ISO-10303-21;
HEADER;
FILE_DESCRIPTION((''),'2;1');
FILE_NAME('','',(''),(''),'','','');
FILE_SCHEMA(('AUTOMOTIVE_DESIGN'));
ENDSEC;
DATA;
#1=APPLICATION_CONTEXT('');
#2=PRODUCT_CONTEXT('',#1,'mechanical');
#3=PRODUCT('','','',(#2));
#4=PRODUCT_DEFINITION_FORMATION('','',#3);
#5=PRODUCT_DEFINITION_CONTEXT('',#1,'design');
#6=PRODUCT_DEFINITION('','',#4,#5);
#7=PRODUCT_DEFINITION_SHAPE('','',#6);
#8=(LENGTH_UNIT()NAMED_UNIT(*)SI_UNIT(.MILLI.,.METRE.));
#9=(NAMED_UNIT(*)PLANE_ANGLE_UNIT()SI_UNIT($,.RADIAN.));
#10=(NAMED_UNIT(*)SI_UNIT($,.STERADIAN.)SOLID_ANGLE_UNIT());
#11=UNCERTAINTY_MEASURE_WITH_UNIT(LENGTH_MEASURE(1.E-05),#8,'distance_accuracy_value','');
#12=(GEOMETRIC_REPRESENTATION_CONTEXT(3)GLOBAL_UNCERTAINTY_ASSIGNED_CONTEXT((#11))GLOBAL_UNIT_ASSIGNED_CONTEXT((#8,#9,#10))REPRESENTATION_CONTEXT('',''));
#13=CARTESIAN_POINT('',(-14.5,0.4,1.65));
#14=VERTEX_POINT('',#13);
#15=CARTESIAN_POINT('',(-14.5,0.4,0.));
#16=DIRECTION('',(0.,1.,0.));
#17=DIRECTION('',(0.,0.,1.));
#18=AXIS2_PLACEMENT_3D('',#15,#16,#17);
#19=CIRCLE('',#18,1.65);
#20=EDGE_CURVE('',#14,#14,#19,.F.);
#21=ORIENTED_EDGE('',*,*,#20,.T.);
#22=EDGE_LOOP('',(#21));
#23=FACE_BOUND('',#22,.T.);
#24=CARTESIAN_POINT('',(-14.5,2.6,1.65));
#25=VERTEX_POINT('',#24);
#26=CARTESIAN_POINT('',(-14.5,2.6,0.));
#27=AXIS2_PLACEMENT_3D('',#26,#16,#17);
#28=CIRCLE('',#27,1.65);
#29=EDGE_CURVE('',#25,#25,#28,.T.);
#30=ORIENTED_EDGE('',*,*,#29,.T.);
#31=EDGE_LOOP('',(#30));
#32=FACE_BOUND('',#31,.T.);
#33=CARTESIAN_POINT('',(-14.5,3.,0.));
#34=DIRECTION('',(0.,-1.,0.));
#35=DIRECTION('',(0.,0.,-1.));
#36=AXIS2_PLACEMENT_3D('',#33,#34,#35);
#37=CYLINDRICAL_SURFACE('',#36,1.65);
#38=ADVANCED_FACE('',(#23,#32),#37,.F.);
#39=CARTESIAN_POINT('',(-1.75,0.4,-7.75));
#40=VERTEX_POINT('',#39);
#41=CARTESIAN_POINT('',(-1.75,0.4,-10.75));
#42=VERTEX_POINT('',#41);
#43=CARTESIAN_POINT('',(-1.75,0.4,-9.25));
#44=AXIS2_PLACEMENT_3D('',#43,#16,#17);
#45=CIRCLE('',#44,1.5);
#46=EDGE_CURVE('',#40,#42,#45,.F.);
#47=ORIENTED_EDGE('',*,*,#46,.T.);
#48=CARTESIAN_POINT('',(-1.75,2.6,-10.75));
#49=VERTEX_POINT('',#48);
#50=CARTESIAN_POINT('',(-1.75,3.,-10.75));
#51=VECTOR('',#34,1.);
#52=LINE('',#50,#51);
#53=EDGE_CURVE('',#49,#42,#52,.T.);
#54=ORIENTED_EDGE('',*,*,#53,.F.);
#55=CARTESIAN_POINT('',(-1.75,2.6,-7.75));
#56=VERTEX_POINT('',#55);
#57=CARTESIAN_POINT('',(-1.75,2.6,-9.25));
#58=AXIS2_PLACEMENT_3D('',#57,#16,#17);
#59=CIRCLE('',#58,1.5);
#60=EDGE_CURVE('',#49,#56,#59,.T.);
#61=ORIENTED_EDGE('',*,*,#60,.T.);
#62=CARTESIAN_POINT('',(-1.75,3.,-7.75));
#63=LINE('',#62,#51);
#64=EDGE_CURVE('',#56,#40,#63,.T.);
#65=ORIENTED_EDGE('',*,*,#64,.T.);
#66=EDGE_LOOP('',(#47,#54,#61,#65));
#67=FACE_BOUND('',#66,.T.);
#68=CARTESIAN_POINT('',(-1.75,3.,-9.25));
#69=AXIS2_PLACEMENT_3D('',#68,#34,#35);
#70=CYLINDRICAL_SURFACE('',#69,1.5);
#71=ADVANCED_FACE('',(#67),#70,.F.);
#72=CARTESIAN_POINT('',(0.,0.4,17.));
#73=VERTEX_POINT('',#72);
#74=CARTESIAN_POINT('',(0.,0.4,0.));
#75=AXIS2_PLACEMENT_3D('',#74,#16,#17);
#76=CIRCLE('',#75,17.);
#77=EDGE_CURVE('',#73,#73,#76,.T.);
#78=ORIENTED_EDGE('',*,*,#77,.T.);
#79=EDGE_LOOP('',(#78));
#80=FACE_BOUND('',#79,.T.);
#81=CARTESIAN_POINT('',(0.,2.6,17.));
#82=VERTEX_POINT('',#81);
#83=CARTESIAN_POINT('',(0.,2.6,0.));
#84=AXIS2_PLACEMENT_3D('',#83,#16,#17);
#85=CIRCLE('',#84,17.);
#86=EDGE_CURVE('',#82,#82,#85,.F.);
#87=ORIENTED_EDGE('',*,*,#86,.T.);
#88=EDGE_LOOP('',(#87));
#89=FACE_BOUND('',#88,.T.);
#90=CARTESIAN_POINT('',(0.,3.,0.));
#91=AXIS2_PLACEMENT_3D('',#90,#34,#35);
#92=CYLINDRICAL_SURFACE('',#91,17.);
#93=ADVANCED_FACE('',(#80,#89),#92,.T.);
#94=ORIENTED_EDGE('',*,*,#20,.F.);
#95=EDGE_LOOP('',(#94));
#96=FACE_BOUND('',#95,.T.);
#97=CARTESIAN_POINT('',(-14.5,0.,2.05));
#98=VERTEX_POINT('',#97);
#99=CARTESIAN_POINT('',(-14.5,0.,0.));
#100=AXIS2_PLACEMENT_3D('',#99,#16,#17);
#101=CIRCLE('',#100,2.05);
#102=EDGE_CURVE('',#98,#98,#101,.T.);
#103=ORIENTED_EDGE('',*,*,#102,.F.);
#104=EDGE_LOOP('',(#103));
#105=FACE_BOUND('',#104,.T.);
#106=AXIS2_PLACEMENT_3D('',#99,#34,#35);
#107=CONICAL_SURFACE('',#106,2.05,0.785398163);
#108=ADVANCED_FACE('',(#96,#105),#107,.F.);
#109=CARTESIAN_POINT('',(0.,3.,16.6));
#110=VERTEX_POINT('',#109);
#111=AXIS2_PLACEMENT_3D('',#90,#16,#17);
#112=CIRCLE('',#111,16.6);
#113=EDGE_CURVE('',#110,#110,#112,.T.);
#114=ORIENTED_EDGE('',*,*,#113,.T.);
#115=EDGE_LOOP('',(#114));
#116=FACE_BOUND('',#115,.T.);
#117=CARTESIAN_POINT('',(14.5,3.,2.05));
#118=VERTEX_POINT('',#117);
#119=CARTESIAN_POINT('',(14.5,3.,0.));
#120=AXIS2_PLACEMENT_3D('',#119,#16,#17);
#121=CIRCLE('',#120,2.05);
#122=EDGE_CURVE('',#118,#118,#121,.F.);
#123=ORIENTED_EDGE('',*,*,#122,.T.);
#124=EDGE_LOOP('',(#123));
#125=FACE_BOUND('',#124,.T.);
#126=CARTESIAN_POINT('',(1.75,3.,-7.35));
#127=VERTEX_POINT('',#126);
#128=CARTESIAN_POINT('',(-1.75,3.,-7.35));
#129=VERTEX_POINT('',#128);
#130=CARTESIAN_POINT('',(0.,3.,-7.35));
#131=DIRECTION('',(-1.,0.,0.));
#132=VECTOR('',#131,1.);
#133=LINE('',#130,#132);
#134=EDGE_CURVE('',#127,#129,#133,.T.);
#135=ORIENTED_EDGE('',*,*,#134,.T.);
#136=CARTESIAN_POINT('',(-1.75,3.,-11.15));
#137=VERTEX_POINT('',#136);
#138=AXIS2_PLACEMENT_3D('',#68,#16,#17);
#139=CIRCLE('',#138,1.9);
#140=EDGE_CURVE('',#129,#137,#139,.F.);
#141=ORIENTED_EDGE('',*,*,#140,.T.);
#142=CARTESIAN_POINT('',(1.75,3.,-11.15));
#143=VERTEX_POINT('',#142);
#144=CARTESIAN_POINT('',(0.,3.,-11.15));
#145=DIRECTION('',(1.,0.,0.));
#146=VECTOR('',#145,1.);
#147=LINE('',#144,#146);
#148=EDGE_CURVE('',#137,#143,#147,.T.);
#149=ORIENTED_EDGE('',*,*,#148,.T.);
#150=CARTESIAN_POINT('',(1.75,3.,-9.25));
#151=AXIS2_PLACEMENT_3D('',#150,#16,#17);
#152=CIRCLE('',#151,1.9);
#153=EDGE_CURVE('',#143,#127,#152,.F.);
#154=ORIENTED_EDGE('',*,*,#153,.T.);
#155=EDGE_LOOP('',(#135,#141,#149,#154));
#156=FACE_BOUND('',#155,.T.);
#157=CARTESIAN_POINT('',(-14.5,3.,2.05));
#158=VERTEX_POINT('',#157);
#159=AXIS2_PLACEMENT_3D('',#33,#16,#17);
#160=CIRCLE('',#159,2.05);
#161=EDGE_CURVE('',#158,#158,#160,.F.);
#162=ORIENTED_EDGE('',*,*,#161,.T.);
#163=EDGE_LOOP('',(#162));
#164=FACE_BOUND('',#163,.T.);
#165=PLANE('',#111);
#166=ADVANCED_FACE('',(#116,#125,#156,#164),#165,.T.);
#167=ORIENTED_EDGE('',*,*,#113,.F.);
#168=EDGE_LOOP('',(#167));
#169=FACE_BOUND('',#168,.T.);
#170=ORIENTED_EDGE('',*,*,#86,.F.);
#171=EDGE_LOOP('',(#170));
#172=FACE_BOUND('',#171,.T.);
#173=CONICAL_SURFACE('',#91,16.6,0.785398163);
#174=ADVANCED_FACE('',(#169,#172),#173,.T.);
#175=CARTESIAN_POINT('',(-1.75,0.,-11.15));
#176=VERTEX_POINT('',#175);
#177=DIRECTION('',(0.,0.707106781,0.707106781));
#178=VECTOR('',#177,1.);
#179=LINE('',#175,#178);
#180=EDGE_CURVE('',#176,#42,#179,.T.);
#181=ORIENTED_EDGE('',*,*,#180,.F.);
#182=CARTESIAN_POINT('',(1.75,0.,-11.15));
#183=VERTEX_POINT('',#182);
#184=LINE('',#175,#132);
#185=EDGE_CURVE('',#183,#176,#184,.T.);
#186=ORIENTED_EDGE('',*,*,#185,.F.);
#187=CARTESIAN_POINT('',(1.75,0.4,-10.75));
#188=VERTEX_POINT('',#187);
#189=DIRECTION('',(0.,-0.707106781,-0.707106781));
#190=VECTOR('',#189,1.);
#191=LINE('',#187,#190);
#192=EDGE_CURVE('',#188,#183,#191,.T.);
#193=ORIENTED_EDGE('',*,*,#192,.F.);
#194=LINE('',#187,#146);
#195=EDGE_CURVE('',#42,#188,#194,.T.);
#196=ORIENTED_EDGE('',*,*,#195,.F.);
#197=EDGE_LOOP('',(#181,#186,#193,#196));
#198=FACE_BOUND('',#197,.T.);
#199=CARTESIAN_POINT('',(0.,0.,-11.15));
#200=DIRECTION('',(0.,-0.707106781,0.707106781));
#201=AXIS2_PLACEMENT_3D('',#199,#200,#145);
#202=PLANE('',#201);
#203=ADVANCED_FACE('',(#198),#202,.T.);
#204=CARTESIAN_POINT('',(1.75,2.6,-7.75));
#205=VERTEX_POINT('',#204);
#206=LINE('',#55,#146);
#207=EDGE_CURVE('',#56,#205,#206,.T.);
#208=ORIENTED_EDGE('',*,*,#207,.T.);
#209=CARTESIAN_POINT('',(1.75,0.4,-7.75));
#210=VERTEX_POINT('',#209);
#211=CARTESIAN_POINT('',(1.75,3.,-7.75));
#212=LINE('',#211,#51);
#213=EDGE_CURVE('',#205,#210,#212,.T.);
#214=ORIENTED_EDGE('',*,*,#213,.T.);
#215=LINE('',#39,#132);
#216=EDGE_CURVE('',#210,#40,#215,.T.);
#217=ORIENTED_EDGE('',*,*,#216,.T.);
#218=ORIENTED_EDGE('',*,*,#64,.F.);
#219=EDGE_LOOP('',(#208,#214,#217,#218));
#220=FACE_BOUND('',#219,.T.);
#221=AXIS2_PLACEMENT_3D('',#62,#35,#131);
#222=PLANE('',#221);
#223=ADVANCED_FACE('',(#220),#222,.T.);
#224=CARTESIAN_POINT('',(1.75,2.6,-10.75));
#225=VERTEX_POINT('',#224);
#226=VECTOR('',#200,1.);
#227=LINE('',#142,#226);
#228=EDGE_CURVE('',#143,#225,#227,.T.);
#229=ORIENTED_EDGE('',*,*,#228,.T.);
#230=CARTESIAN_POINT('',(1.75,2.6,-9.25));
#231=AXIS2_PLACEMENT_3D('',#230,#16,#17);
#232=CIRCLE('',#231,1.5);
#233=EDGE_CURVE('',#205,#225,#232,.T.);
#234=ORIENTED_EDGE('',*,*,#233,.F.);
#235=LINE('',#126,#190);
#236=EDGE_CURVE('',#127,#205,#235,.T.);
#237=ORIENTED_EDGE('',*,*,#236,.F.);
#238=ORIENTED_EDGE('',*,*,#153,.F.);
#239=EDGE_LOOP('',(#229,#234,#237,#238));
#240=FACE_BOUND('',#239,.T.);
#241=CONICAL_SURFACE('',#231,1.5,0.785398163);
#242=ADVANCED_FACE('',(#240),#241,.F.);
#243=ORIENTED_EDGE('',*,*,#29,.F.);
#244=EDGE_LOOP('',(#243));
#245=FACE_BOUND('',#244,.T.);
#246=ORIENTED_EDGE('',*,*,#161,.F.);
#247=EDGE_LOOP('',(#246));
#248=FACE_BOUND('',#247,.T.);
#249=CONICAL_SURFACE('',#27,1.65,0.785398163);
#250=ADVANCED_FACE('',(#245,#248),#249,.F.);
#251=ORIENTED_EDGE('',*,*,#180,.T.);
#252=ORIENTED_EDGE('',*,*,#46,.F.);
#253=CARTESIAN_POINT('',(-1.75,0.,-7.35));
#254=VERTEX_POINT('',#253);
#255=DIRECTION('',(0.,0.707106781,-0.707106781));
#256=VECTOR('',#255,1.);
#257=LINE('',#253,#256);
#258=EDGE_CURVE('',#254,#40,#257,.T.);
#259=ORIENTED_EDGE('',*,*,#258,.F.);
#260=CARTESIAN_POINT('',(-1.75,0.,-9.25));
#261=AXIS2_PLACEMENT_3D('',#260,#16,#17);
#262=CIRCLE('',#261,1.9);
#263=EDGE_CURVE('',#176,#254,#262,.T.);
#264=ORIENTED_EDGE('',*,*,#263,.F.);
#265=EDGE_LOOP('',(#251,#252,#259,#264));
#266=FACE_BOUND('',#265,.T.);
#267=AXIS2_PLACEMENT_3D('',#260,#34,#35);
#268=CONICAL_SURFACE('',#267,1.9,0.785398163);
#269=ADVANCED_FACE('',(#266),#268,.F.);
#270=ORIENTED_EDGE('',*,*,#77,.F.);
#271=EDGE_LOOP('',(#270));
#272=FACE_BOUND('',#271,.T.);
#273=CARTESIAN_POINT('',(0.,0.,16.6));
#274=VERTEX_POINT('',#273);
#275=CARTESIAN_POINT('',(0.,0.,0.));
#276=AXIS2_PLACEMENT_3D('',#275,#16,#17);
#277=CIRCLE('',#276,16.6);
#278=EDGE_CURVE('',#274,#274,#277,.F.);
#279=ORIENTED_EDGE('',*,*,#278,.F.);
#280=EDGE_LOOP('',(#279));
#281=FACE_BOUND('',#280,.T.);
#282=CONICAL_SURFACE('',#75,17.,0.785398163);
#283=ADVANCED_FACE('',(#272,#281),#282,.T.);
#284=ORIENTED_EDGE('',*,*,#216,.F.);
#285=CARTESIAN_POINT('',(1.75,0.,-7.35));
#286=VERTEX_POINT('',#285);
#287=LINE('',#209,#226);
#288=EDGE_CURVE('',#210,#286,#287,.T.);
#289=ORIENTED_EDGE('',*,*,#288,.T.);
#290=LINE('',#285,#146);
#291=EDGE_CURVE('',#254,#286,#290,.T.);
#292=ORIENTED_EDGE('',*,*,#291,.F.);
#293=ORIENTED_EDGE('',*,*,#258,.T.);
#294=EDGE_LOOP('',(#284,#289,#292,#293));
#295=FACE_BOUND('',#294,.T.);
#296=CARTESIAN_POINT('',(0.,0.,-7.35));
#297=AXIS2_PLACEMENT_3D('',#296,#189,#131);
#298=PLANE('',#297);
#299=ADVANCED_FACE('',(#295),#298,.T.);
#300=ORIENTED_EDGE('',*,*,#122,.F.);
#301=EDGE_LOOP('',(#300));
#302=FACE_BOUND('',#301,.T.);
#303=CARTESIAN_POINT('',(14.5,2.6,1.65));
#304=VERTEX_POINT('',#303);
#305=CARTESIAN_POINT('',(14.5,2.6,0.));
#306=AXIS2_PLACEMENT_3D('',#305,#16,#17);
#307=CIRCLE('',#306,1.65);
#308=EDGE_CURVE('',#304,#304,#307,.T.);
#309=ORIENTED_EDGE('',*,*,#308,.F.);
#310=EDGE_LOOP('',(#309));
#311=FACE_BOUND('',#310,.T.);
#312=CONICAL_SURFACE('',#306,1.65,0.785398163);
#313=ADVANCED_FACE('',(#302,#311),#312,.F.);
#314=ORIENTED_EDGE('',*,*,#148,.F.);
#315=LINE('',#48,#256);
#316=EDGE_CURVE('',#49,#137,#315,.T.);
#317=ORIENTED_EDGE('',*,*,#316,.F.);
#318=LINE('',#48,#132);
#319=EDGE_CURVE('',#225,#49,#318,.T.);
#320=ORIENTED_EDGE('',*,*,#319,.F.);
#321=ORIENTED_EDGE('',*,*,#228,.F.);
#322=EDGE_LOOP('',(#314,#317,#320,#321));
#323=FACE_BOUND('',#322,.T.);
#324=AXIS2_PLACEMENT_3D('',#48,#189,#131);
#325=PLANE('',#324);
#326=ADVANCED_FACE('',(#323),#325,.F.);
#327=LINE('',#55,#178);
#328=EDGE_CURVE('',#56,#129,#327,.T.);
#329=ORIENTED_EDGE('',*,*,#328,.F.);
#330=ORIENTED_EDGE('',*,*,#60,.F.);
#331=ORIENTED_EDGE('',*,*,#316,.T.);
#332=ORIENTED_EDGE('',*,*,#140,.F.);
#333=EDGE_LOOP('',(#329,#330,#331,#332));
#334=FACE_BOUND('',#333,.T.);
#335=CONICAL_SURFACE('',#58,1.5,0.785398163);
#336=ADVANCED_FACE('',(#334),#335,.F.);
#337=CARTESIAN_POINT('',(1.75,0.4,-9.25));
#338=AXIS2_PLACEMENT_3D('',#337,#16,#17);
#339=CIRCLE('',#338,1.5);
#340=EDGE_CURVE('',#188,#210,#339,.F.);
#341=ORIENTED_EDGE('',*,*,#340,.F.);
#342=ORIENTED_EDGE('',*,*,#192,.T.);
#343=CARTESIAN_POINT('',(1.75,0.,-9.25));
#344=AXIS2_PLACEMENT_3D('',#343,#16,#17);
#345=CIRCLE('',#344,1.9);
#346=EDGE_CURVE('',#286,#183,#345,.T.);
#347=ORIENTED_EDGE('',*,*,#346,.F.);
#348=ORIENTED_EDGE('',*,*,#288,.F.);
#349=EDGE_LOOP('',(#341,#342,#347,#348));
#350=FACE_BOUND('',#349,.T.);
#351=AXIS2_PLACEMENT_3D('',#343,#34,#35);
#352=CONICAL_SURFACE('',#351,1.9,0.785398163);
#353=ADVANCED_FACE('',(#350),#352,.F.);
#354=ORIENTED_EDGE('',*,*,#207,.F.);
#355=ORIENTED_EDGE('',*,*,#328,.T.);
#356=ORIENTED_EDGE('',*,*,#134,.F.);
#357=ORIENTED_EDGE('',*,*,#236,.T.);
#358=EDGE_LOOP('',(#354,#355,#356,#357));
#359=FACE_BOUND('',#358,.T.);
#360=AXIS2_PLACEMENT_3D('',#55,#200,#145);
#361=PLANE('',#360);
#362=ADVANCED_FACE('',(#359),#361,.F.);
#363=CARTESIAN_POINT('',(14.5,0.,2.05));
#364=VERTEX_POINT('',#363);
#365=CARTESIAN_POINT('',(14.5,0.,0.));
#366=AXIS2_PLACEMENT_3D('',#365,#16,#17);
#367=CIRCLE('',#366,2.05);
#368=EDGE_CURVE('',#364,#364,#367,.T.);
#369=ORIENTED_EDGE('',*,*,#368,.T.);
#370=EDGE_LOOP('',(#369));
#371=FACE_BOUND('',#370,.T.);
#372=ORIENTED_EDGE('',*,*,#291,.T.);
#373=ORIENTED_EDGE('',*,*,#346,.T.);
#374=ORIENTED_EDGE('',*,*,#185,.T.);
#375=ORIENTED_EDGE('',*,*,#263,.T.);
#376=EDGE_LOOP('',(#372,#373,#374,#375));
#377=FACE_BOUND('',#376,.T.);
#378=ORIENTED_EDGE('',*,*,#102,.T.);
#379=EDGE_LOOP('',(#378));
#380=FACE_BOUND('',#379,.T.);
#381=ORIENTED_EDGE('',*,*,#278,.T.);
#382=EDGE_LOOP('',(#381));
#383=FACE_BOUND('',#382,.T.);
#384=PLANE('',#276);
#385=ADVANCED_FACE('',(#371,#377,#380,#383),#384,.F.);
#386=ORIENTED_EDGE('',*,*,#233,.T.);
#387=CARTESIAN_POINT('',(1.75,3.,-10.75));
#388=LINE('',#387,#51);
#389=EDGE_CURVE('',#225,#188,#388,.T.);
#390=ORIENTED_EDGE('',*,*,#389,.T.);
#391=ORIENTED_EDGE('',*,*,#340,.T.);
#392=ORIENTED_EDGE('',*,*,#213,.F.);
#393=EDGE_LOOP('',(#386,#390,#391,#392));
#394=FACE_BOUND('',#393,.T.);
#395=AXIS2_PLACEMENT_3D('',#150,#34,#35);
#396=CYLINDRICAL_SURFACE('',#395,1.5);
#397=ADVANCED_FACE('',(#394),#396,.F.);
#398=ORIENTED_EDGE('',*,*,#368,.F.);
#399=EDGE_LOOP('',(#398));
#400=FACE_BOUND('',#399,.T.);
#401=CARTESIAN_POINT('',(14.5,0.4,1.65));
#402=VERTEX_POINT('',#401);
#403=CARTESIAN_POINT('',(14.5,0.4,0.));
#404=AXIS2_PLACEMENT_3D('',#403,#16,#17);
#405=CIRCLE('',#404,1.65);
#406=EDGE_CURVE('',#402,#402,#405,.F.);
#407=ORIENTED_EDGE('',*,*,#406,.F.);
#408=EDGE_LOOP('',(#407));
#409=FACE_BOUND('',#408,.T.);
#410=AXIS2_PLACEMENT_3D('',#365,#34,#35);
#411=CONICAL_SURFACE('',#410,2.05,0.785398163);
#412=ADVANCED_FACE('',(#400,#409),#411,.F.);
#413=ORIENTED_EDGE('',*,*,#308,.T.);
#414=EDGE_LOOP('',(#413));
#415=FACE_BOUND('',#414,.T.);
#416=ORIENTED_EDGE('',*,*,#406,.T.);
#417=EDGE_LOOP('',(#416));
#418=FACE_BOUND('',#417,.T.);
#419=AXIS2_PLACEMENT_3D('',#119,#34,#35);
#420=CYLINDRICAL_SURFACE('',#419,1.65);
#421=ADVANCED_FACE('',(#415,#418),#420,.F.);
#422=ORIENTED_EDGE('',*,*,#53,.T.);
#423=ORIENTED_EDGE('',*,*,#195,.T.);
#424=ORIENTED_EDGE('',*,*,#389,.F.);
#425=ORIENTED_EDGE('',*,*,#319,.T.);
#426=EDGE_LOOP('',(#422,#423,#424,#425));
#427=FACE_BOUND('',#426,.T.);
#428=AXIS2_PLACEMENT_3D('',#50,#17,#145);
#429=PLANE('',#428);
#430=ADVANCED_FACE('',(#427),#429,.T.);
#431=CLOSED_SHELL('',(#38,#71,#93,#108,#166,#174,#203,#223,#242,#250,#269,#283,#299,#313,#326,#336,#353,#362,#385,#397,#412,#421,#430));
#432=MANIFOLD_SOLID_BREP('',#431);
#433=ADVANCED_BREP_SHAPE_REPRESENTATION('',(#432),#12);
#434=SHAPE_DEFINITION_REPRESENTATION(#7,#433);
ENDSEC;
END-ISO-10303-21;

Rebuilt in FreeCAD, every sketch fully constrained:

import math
import FreeCAD as App
import Part
import Sketcher
from FreeCAD import Vector
Q = App.Units.Quantity


def edges_at(feature, points):
    """Names of the edges that pass closest to the given points."""
    edges = feature.Shape.Edges
    near = lambda p: min(range(len(edges)), key=lambda i: edges[i].distToShape(Part.Vertex(*p))[0])
    return sorted({f"Edge{near(p) + 1}" for p in points})

doc = App.newDocument("Part")
body = doc.addObject("PartDesign::Body", "Body")

# Sketch on XZ plane
sketch1 = doc.addObject("Sketcher::SketchObject", "Sketch")
body.addObject(sketch1)
sketch1.AttachmentSupport = (doc.XZ_Plane, [""])
sketch1.MapMode = "FlatFace"
sketch1.addGeometry(Part.Circle(Vector(0, 0, 0), Vector(0, 0, 1), 17), False)
sketch1.addGeometry(Part.Circle(Vector(-14.5, 0, 0), Vector(0, 0, 1), 1.6), False)
sketch1.addGeometry(Part.Circle(Vector(14.5, 0, 0), Vector(0, 0, 1), 1.6), False)
sketch1.addGeometry(Part.LineSegment(Vector(1.8, -7.8, 0), Vector(-1.8, -7.8, 0)), False)
sketch1.addGeometry(Part.ArcOfCircle(Part.Circle(Vector(-1.8, -9.2, 0), Vector(0, 0, 1), 1.5), math.radians(90), math.radians(270)), False)
sketch1.addGeometry(Part.LineSegment(Vector(-1.8, -10.8, 0), Vector(1.8, -10.8, 0)), False)
sketch1.addGeometry(Part.ArcOfCircle(Part.Circle(Vector(1.8, -9.2, 0), Vector(0, 0, 1), 1.5), math.radians(-90), math.radians(90)), False)
sketch1.addConstraint(Sketcher.Constraint("Tangent", 3, 2, 4, 1))
sketch1.addConstraint(Sketcher.Constraint("Tangent", 4, 2, 5, 1))
sketch1.addConstraint(Sketcher.Constraint("Tangent", 5, 2, 6, 1))
sketch1.addConstraint(Sketcher.Constraint("Tangent", 6, 2, 3, 1))
sketch1.addConstraint(Sketcher.Constraint("Horizontal", 3))
sketch1.addConstraint(Sketcher.Constraint("Horizontal", 5))
sketch1.addConstraint(Sketcher.Constraint("Coincident", 0, 3, -1, 1))
sketch1.addConstraint(Sketcher.Constraint("Equal", 1, 2))
sketch1.addConstraint(Sketcher.Constraint("Symmetric", 1, 3, 2, 3, -1, 1))
sketch1.addConstraint(Sketcher.Constraint("PointOnObject", 1, 3, -1))
sketch1.addConstraint(Sketcher.Constraint("Diameter", 0, Q("34 mm")))
sketch1.addConstraint(Sketcher.Constraint("Diameter", 1, Q("3.3 mm")))
sketch1.addConstraint(Sketcher.Constraint("Radius", 4, Q("1.5 mm")))
sketch1.addConstraint(Sketcher.Constraint("DistanceX", 3, 2, 3, 1, Q("3.5 mm")))
sketch1.addConstraint(Sketcher.Constraint("DistanceX", 1, 3, 2, 3, Q("29 mm")))
sketch1.addConstraint(Sketcher.Constraint("DistanceX", 4, 3, -1, 1, Q("1.75 mm")))
sketch1.addConstraint(Sketcher.Constraint("DistanceY", 4, 3, -1, 1, Q("9.25 mm")))
pad1 = doc.addObject("PartDesign::Pad", "Pad")
body.addObject(pad1)
pad1.Profile = sketch1
pad1.Length = 3
pad1.Reversed = True
doc.recompute()

chamfer = doc.addObject("PartDesign::Chamfer", "Chamfer")
body.addObject(chamfer)
chamfer.Base = (pad1, edges_at(pad1, [
    (-3.25, 3, -9.25),
    (0, 3, -7.75),
    (-16.15, 0, 0),
    (-16.15, 3, 0),
    (-17, 0, 0),
    (12.85, 0, 0),
    (12.85, 3, 0),
    (-17, 3, 0),
    (3.25, 0, -9.25),
    (0, 0, -10.75),
    (-3.25, 0, -9.25),
    (0, 0, -7.75),
    (3.25, 3, -9.25),
    (0, 3, -10.75),
]))
chamfer.Size = 0.4

doc.recompute()
